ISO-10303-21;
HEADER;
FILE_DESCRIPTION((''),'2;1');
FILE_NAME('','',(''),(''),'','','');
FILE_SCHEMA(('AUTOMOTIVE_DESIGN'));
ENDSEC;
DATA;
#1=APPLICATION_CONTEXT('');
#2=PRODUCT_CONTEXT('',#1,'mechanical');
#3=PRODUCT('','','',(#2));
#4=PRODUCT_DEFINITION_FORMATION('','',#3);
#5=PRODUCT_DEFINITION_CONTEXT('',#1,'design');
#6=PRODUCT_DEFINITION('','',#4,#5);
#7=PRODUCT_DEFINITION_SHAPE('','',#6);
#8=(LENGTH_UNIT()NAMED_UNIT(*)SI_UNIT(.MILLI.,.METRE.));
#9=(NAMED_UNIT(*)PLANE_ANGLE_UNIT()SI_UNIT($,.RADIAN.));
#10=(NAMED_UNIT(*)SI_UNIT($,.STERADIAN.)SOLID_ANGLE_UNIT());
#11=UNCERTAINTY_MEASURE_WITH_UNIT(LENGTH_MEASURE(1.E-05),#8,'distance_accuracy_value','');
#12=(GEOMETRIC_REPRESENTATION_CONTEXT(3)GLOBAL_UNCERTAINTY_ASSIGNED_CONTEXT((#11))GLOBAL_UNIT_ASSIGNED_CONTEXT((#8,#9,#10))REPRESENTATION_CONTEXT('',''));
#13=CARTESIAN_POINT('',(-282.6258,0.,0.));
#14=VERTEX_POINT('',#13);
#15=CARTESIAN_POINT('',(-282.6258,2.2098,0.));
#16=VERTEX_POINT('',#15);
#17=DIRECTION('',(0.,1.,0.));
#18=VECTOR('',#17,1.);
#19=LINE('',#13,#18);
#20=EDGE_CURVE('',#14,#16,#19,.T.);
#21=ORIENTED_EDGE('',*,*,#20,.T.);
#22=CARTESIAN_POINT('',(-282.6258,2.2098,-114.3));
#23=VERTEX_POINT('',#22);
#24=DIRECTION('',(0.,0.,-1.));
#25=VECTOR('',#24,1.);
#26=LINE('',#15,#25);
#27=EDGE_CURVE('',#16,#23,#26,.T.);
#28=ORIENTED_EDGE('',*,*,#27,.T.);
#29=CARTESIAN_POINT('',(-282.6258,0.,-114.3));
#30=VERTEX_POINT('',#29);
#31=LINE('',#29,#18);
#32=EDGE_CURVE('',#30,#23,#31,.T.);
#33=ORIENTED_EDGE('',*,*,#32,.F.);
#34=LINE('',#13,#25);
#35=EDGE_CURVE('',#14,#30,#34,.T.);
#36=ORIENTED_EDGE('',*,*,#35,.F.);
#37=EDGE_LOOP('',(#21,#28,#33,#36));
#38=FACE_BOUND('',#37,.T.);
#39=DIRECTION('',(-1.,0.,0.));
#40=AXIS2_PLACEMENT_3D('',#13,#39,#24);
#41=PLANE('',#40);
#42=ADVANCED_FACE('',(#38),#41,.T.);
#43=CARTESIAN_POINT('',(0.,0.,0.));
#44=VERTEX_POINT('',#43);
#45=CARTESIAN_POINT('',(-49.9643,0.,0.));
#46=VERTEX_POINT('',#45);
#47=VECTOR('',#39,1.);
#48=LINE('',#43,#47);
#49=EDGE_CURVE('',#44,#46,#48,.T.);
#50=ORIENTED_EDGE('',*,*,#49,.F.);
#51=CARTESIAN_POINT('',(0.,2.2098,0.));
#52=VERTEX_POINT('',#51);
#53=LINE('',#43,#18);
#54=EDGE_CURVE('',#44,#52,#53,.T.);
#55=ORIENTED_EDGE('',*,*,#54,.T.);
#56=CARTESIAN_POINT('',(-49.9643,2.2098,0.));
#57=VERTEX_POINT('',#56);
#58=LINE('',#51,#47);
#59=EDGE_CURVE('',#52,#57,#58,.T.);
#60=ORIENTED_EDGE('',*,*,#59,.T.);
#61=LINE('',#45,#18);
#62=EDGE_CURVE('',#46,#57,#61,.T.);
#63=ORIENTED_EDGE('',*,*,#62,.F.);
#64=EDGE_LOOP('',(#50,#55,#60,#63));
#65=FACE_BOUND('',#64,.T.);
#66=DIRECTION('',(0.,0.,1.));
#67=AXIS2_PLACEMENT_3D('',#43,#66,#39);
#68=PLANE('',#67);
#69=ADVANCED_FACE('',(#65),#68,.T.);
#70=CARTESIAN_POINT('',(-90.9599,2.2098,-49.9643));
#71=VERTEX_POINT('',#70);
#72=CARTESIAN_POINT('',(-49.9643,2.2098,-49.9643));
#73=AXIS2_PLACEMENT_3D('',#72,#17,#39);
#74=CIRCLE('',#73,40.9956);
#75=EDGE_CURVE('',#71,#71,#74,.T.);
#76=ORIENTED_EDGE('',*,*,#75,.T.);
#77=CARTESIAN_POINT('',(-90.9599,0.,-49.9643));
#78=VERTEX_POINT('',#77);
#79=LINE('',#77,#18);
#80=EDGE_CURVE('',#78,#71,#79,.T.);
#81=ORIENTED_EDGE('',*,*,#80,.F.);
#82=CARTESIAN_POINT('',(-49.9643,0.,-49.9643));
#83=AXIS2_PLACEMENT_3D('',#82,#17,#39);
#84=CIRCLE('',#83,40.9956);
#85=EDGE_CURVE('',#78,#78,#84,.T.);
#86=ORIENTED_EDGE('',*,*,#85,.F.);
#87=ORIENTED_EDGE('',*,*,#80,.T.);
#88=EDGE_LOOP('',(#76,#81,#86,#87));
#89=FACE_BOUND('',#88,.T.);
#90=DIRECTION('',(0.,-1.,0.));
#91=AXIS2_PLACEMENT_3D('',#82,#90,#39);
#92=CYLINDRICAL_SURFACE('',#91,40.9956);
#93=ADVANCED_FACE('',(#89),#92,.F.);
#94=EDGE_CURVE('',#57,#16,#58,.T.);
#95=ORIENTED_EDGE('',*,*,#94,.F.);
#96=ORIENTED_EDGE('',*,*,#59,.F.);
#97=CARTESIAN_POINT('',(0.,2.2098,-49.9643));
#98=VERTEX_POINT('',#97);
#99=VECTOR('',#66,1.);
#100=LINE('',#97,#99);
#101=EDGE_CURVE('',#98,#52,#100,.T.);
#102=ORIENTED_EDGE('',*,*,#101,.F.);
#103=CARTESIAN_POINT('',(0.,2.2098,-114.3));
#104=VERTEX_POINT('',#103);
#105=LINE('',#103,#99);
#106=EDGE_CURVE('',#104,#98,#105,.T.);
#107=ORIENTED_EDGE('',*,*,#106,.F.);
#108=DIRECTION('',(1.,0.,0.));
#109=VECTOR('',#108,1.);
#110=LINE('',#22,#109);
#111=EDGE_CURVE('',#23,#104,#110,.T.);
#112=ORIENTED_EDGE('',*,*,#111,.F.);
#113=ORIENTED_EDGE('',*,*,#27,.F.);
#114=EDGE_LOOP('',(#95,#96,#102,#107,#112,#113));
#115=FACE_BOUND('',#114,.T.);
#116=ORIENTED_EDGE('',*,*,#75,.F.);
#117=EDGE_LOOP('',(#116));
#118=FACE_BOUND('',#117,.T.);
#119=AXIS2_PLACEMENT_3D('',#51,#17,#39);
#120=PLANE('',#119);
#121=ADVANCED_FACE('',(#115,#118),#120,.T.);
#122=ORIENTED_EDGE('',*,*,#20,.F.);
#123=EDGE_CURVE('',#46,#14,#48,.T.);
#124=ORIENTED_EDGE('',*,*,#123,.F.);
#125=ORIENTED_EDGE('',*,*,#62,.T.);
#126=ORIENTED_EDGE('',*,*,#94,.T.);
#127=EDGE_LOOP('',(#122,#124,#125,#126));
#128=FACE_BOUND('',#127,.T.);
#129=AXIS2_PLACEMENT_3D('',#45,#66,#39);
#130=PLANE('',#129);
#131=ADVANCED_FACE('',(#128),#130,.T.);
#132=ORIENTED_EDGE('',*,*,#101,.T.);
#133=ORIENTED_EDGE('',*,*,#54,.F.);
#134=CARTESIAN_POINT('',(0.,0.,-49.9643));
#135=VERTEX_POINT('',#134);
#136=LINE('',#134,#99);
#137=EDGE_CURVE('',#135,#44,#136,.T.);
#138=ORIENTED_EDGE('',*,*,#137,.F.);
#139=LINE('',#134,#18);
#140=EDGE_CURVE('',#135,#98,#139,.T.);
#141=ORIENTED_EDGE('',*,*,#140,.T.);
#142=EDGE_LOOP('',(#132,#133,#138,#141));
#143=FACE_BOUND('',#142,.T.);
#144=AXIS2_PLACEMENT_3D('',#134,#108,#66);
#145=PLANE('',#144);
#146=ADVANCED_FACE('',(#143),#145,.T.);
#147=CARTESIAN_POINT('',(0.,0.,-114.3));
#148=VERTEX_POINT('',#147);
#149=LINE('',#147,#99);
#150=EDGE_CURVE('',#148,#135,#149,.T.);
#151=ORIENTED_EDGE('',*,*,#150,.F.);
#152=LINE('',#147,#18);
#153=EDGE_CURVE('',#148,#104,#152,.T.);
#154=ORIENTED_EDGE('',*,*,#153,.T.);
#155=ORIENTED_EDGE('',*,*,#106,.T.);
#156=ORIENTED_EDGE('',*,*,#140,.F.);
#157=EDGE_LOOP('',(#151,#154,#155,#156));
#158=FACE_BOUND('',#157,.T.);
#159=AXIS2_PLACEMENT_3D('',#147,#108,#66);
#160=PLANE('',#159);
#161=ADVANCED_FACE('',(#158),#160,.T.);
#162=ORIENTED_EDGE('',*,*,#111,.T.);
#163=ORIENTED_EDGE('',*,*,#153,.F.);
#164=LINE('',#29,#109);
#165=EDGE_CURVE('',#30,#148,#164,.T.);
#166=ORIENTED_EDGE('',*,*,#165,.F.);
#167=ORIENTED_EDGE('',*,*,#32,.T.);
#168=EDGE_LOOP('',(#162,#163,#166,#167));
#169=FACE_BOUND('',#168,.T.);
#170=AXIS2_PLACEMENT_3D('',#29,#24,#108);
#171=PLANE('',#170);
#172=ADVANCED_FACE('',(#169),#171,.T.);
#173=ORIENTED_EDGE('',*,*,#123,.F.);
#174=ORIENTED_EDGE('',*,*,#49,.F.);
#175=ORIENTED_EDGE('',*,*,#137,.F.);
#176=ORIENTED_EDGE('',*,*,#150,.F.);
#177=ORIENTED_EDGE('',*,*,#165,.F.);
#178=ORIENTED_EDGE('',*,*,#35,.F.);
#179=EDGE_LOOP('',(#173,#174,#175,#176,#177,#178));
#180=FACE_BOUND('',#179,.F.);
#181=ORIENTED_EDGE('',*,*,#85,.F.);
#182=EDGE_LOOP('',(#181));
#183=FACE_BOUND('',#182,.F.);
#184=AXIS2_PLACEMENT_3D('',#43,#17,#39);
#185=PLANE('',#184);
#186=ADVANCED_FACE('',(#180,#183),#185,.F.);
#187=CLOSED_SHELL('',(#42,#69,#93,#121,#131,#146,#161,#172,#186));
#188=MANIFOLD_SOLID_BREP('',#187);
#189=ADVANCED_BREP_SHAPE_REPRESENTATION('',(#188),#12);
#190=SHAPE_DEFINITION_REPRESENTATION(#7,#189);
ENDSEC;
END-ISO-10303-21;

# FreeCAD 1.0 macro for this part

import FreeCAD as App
import Part
import Sketcher

V = App.Vector
Q = App.Units.Quantity


def add_polygon(sketch, points):
    """Adds a closed chain of lines whose ends are joined by coincident constraints."""
    first, n = sketch.GeometryCount, len(points)
    for a, b in zip(points, points[1:] + points[:1]):
        sketch.addGeometry(Part.LineSegment(App.Vector(*a, 0), App.Vector(*b, 0)), False)
    for i in range(n):
        sketch.addConstraint(Sketcher.Constraint("Coincident", first + i, 2, first + (i + 1) % n, 1))

doc = App.newDocument("Part")
body = doc.addObject("PartDesign::Body", "Body")

# Sketch on XZ plane
sketch1 = doc.addObject("Sketcher::SketchObject", "Sketch")
body.addObject(sketch1)
sketch1.AttachmentSupport = (doc.XZ_Plane, [""])
sketch1.MapMode = "FlatFace"
add_polygon(sketch1, [(-282.6258, 0), (0, 0), (0, -114.3), (-282.6258, -114.3)])  # lines 0-3
sketch1.addGeometry(Part.Circle(V(-49.9643, -49.9643, 0), V(0, 0, 1), 40.9956), False)  # 4
sketch1.addConstraint(Sketcher.Constraint("Horizontal", 0))
sketch1.addConstraint(Sketcher.Constraint("Vertical", 1))
sketch1.addConstraint(Sketcher.Constraint("Horizontal", 2))
sketch1.addConstraint(Sketcher.Constraint("Vertical", 3))
sketch1.addConstraint(Sketcher.Constraint("Coincident", 0, 2, -1, 1))
sketch1.addConstraint(Sketcher.Constraint("Diameter", 4, Q("3.228 in")))
sketch1.addConstraint(Sketcher.Constraint("DistanceY", 1, 2, 1, 1, Q("4.5 in")))
sketch1.addConstraint(Sketcher.Constraint("DistanceX", 0, 1, 0, 2, Q("11.127 in")))
sketch1.addConstraint(Sketcher.Constraint("DistanceX", 4, 3, -1, 1, Q("1.9671 in")))
sketch1.addConstraint(Sketcher.Constraint("DistanceY", 4, 3, -1, 1, Q("1.9671 in")))
pad1 = doc.addObject("PartDesign::Pad", "Pad")
body.addObject(pad1)
pad1.Profile = sketch1
pad1.Length = Q("0.087 in")
pad1.Reversed = True

doc.recompute()
